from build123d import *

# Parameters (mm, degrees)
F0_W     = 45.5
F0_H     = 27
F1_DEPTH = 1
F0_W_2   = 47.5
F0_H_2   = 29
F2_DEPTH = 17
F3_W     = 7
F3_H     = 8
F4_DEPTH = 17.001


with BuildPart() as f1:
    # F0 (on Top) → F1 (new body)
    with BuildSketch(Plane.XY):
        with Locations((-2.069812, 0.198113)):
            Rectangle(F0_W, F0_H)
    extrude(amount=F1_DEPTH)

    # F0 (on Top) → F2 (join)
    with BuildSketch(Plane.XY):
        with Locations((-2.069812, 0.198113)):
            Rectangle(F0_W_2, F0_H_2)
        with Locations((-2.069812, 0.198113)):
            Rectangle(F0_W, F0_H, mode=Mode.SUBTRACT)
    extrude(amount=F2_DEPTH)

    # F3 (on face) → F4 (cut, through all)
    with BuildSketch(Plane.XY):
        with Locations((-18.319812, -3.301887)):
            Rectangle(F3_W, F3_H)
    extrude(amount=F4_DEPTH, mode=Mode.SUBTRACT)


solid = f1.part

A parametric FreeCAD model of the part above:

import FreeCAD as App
import Part
import Sketcher

V = App.Vector


def add_polygon(sketch, points):
    """Adds a closed chain of lines whose ends are joined by coincident constraints."""
    first, n = sketch.GeometryCount, len(points)
    for a, b in zip(points, points[1:] + points[:1]):
        sketch.addGeometry(Part.LineSegment(App.Vector(*a, 0), App.Vector(*b, 0)), False)
    for i in range(n):
        sketch.addConstraint(Sketcher.Constraint("Coincident", first + i, 2, first + (i + 1) % n, 1))

doc = App.newDocument("Part")
params = doc.addObject("Spreadsheet::Sheet", "Params")
for row, (alias, value) in enumerate([
    ("sketch1_height", "27 mm"),
    ("sketch1_width", "45.5 mm"),
    ("pad1_length", "1 mm"),
    ("sketch2_height", "29 mm"),
    ("sketch2_height2", "27 mm"),
    ("sketch2_width", "47.5 mm"),
    ("sketch2_width2", "45.5 mm"),
    ("pad2_length", "17 mm"),
    ("sketch3_width", "7 mm"),
    ("sketch3_height", "8 mm"),
], start=1):
    params.set(f"A{row}", alias)
    params.set(f"B{row}", "=" + value)
    params.setAlias(f"B{row}", alias)

body = doc.addObject("PartDesign::Body", "Body")

# Sketch on XY plane
sketch1 = body.newObject("Sketcher::SketchObject", "Sketch")
sketch1.AttachmentSupport = (doc.getObject("XY_Plane"), [""])
sketch1.MapMode = "FlatFace"
add_polygon(sketch1, [(-25, 14), (-25, -13), (21, -13), (21, 14)])  # lines 0-3
sketch1.addConstraint(Sketcher.Constraint("Vertical", 0))
sketch1.addConstraint(Sketcher.Constraint("Horizontal", 1))
sketch1.addConstraint(Sketcher.Constraint("Vertical", 2))
sketch1.addConstraint(Sketcher.Constraint("Horizontal", 3))
sketch1.addConstraint(Sketcher.Constraint("DistanceY", 0, 2, 0, 1, 27.0))
sketch1.addConstraint(Sketcher.Constraint("DistanceX", 1, 1, 1, 2, 45.5))
sketch1.addConstraint(Sketcher.Constraint("DistanceX", 0, 2, -1, 1, 24.819812))
sketch1.addConstraint(Sketcher.Constraint("DistanceY", 0, 2, -1, 1, 13.301887))
sketch1.setExpression("Constraints[8]", "Params.sketch1_height")
sketch1.setExpression("Constraints[9]", "Params.sketch1_width")
pad1 = body.newObject("PartDesign::Pad", "Pad")
pad1.Profile = sketch1
pad1.setExpression("Length", "Params.pad1_length")

# Sketch on XY plane
sketch2 = body.newObject("Sketcher::SketchObject", "Sketch001")
sketch2.AttachmentSupport = (doc.getObject("XY_Plane"), [""])
sketch2.MapMode = "FlatFace"
add_polygon(sketch2, [(-26, 15), (-26, -14), (22, -14), (22, 15)])  # lines 0-3
add_polygon(sketch2, [(21, -13), (-25, -13), (-25, 14), (21, 14)])  # lines 4-7
sketch2.addConstraint(Sketcher.Constraint("Vertical", 0))
sketch2.addConstraint(Sketcher.Constraint("Horizontal", 1))
sketch2.addConstraint(Sketcher.Constraint("Vertical", 2))
sketch2.addConstraint(Sketcher.Constraint("Horizontal", 3))
sketch2.addConstraint(Sketcher.Constraint("Horizontal", 4))
sketch2.addConstraint(Sketcher.Constraint("Vertical", 5))
sketch2.addConstraint(Sketcher.Constraint("Horizontal", 6))
sketch2.addConstraint(Sketcher.Constraint("Vertical", 7))
sketch2.addConstraint(Sketcher.Constraint("DistanceY", 0, 2, 0, 1, 29.0))
sketch2.addConstraint(Sketcher.Constraint("DistanceY", 5, 1, 5, 2, 27.0))
sketch2.addConstraint(Sketcher.Constraint("DistanceX", 1, 1, 1, 2, 47.5))
sketch2.addConstraint(Sketcher.Constraint("DistanceX", 4, 2, 4, 1, 45.5))
sketch2.addConstraint(Sketcher.Constraint("DistanceX", 0, 2, 4, 2, 1.0))
sketch2.addConstraint(Sketcher.Constraint("DistanceY", 0, 2, 4, 2, 1.0))
sketch2.addConstraint(Sketcher.Constraint("DistanceX", 0, 2, -1, 1, 25.819812))
sketch2.addConstraint(Sketcher.Constraint("DistanceY", 0, 2, -1, 1, 14.301887))
sketch2.setExpression("Constraints[16]", "Params.sketch2_height")
sketch2.setExpression("Constraints[17]", "Params.sketch2_height2")
sketch2.setExpression("Constraints[18]", "Params.sketch2_width")
sketch2.setExpression("Constraints[19]", "Params.sketch2_width2")
pad2 = body.newObject("PartDesign::Pad", "Pad001")
pad2.Profile = sketch2
pad2.setExpression("Length", "Params.pad2_length")

# Sketch on XY plane
sketch3 = body.newObject("Sketcher::SketchObject", "Sketch002")
sketch3.AttachmentSupport = (doc.getObject("XY_Plane"), [""])
sketch3.MapMode = "FlatFace"
add_polygon(sketch3, [(-22, 1), (-22, -7), (-15, -7), (-15, 1)])  # lines 0-3
sketch3.addConstraint(Sketcher.Constraint("Vertical", 0))
sketch3.addConstraint(Sketcher.Constraint("Horizontal", 1))
sketch3.addConstraint(Sketcher.Constraint("Vertical", 2))
sketch3.addConstraint(Sketcher.Constraint("Horizontal", 3))
sketch3.addConstraint(Sketcher.Constraint("DistanceX", 1, 1, 1, 2, 7.0))
sketch3.addConstraint(Sketcher.Constraint("DistanceY", 0, 2, 0, 1, 8.0))
sketch3.addConstraint(Sketcher.Constraint("DistanceX", 0, 2, -1, 1, 21.819812))
sketch3.addConstraint(Sketcher.Constraint("DistanceY", 0, 2, -1, 1, 7.301887))
sketch3.setExpression("Constraints[8]", "Params.sketch3_width")
sketch3.setExpression("Constraints[9]", "Params.sketch3_height")
pocket1 = body.newObject("PartDesign::Pocket", "Pocket")
pocket1.Profile = sketch3
pocket1.Type = "ThroughAll"
pocket1.Reversed = True

doc.recompute()
